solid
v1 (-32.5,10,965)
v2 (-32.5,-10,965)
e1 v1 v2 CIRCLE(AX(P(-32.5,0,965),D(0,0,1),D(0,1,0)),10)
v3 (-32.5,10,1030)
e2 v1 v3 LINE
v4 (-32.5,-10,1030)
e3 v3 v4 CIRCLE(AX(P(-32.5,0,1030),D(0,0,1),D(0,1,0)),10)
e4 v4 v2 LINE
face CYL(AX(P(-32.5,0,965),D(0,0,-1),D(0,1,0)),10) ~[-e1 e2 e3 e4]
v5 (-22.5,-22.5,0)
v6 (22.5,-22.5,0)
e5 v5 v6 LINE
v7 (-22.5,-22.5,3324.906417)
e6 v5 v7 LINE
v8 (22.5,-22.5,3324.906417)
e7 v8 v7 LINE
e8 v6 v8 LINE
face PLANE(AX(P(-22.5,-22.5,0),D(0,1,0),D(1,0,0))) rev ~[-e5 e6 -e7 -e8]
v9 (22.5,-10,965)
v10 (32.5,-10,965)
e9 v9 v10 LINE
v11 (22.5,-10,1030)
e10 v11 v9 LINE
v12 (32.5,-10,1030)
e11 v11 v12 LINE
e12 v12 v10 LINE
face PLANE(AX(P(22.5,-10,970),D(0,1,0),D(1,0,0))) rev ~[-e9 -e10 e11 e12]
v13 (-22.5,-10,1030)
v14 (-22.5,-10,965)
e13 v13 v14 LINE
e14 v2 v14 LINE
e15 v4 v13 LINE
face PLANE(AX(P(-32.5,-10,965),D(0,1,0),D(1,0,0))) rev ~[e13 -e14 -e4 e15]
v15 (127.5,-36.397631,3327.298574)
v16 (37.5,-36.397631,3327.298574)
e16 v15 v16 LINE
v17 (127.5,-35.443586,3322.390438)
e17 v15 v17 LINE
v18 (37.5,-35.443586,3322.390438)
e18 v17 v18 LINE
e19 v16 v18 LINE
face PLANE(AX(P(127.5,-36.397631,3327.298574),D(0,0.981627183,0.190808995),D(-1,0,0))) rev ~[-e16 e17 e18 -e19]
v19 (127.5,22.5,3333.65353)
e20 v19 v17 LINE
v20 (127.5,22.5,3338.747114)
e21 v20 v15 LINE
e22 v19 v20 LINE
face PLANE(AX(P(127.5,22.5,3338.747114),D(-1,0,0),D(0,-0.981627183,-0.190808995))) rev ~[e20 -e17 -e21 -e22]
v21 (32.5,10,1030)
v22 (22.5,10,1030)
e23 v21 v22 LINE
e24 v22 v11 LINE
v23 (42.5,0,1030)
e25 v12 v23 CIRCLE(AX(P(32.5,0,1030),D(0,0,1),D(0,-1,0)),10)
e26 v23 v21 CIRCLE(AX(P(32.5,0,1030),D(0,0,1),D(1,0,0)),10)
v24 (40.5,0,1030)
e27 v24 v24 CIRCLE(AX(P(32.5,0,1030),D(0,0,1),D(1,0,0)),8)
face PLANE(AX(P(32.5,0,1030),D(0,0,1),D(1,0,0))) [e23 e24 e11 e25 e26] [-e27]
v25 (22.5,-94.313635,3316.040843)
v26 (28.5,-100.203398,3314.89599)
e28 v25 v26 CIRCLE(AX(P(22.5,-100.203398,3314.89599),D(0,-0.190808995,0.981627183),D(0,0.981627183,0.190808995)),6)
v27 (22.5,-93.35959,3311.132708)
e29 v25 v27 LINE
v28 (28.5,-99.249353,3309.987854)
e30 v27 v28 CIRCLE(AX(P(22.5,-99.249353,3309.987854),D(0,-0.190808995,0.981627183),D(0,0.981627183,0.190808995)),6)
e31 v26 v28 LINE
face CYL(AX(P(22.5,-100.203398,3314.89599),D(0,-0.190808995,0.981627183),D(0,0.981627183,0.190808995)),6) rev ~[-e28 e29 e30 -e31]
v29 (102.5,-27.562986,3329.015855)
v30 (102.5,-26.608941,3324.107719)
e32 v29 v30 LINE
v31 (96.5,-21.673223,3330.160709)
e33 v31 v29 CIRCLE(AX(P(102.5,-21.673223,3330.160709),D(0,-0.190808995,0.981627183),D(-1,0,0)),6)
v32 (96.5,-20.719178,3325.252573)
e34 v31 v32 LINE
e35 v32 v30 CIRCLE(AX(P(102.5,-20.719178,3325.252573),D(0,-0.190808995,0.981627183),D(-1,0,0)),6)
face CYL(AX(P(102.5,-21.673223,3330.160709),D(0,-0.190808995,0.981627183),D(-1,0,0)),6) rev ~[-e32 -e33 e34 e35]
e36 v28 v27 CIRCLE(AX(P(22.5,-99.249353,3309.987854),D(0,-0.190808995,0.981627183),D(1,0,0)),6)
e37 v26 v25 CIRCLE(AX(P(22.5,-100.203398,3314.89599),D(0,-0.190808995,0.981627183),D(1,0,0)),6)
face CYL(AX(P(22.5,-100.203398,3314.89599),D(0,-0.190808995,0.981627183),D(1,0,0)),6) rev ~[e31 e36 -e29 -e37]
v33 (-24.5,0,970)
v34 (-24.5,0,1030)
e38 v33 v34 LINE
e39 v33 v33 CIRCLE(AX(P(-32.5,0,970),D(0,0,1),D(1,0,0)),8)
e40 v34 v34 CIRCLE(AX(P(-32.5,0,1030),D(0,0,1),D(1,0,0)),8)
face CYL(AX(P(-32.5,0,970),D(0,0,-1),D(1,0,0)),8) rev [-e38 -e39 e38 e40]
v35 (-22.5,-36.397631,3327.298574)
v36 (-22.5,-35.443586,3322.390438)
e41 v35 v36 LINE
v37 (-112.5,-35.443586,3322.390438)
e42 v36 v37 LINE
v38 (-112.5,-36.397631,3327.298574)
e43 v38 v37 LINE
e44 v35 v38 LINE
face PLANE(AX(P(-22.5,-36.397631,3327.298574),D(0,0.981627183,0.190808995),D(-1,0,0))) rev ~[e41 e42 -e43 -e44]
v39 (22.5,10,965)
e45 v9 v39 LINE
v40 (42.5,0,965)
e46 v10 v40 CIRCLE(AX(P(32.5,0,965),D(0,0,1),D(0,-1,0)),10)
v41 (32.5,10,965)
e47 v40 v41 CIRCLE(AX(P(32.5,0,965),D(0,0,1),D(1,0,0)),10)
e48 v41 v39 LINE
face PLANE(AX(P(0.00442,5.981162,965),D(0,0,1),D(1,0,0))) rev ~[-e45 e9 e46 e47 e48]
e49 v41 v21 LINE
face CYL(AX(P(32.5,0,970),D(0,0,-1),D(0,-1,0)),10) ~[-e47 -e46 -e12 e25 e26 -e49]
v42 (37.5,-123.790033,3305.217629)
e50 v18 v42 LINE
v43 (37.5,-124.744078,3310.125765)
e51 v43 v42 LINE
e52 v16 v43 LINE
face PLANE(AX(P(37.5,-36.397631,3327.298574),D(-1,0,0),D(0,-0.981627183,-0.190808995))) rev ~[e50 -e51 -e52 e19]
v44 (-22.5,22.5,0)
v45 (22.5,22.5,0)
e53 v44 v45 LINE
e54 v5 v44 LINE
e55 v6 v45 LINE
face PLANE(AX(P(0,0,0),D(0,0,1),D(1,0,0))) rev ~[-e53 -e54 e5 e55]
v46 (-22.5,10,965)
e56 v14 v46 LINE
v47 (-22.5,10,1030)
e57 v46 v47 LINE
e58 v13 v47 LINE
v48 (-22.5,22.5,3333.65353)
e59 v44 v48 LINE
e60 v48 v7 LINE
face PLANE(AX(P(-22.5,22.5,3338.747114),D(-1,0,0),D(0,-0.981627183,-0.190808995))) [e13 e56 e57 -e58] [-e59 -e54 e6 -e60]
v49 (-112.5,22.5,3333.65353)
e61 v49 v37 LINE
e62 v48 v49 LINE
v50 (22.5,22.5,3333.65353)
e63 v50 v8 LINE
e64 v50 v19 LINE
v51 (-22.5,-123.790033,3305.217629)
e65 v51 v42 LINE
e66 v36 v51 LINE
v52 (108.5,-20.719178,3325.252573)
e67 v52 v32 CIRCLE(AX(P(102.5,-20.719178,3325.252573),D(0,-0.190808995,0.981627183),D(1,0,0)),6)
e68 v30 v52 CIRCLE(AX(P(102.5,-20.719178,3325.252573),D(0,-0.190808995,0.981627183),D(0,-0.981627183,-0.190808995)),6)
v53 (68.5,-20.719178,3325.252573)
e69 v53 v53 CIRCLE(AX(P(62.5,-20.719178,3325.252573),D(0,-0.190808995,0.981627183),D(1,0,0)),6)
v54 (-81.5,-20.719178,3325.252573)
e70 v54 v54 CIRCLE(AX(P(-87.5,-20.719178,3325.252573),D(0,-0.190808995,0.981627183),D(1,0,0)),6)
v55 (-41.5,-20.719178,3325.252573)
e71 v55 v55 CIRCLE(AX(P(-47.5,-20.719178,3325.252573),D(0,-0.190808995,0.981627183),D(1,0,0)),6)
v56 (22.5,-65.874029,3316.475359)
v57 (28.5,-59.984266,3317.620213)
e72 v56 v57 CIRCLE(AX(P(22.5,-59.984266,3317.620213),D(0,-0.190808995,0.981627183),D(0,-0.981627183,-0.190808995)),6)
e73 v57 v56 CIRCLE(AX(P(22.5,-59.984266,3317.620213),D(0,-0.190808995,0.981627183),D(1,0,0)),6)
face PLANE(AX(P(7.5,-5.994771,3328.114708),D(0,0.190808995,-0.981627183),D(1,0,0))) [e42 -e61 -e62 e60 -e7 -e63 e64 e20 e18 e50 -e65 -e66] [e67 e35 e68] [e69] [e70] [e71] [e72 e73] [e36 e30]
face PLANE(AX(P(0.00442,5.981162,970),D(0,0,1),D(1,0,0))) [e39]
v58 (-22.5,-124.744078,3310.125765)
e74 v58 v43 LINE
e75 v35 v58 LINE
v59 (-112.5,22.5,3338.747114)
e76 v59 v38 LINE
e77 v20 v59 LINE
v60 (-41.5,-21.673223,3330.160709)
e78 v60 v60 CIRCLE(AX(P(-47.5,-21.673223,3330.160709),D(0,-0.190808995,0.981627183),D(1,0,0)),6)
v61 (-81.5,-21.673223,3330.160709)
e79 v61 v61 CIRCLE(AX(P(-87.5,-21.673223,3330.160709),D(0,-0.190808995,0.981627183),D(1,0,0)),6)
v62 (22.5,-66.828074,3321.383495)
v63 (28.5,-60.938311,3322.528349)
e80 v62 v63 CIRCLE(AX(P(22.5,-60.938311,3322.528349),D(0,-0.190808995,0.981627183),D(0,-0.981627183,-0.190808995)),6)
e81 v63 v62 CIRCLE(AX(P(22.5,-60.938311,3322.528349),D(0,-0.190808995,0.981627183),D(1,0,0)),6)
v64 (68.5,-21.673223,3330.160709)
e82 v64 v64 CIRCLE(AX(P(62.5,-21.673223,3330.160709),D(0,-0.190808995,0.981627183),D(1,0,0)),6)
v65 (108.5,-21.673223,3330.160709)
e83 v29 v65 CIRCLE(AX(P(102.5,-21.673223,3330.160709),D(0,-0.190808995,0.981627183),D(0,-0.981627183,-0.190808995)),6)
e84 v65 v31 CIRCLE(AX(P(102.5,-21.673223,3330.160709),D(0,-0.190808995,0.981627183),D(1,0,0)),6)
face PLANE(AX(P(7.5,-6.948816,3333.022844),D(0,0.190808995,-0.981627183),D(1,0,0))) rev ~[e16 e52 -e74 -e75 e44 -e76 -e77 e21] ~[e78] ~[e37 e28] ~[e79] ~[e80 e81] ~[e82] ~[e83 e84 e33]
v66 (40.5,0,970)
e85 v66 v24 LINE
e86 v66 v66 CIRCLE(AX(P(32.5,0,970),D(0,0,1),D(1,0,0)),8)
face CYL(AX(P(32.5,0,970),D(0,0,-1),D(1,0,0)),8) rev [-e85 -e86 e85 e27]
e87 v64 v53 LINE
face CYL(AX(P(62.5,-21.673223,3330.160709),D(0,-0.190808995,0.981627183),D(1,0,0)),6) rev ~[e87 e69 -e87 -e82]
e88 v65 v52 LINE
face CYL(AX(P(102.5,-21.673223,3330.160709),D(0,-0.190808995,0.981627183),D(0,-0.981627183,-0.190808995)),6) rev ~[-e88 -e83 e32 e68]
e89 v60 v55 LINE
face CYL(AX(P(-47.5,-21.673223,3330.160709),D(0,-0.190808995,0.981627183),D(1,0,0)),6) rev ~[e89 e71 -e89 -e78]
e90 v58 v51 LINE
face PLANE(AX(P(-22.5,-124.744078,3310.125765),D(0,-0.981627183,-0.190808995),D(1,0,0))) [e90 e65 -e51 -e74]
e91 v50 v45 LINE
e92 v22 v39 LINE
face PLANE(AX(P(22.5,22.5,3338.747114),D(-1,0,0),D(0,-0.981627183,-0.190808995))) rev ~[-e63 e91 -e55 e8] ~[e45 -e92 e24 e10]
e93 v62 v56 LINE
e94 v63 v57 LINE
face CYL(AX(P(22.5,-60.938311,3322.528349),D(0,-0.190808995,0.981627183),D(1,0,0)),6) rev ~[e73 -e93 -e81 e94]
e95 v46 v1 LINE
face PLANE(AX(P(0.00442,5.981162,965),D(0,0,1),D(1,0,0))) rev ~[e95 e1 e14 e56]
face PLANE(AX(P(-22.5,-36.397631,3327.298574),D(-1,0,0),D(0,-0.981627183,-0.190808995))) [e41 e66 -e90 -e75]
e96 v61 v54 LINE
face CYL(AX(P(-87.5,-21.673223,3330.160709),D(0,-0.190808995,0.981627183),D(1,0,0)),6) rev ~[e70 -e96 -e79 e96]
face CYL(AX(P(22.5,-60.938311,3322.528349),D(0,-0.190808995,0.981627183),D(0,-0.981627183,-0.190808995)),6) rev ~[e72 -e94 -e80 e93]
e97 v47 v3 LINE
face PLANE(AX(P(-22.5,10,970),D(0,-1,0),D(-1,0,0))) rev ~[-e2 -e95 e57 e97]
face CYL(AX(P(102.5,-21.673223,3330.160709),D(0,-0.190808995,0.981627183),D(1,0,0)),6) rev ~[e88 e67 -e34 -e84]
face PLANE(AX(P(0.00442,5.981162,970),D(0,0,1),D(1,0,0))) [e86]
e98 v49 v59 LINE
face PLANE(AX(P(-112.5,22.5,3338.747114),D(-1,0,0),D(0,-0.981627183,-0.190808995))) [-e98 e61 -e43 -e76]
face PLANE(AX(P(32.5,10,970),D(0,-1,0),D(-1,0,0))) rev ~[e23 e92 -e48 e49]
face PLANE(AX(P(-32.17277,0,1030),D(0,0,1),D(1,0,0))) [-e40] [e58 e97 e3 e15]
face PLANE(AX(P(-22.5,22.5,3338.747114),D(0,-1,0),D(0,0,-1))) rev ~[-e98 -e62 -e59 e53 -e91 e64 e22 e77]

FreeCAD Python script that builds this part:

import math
import FreeCAD as App
import Part
import Sketcher
Q = App.Units.Quantity


def add_polygon(sketch, points):
    """Adds a closed chain of lines whose ends are joined by coincident constraints."""
    first, n = sketch.GeometryCount, len(points)
    for a, b in zip(points, points[1:] + points[:1]):
        sketch.addGeometry(Part.LineSegment(App.Vector(*a, 0), App.Vector(*b, 0)), False)
    for i in range(n):
        sketch.addConstraint(Sketcher.Constraint("Coincident", first + i, 2, first + (i + 1) % n, 1))

doc = App.newDocument("Part")
body = doc.addObject("PartDesign::Body", "Body")

# Sketch on XY plane
sketch1 = doc.addObject("Sketcher::SketchObject", "Sketch")
body.addObject(sketch1)
sketch1.AttachmentSupport = (doc.XY_Plane, [""])
sketch1.MapMode = "FlatFace"
add_polygon(sketch1, [(-22.5, 22.5), (-22.5, -22.5), (22.5, -22.5), (22.5, 22.5)])  # lines 0-3
sketch1.addConstraint([
    Sketcher.Constraint("Vertical", 0),
    Sketcher.Constraint("Horizontal", 1),
    Sketcher.Constraint("Vertical", 2),
    Sketcher.Constraint("Horizontal", 3),
    Sketcher.Constraint("Symmetric", 0, 2, 2, 2, -1, 1),
    Sketcher.Constraint("Equal", 3, 0),
    Sketcher.Constraint("DistanceX", 1, 1, 1, 2, 45.0),
])
pad1 = doc.addObject("PartDesign::Pad", "Pad")
body.addObject(pad1)
pad1.Profile = sketch1
pad1.Length = 3330

# Sketch on XY plane
sketch2 = doc.addObject("Sketcher::SketchObject", "Sketch001")
body.addObject(sketch2)
sketch2.AttachmentSupport = (doc.XY_Plane, [""])
sketch2.MapMode = "FlatFace"
sketch2.AttachmentOffset = App.Placement(App.Vector(0, 0, 965), App.Rotation())
sketch2.addGeometry([
    Part.ArcOfCircle(Part.Circle(App.Vector(32.5, 0, 0), App.Vector(0, 0, 1), 10), math.radians(0), math.radians(90)),  # 0
    Part.LineSegment(App.Vector(32.5, 10, 0), App.Vector(-32.5, 10, 0)),  # 1
    Part.ArcOfCircle(Part.Circle(App.Vector(-32.5, 0, 0), App.Vector(0, 0, 1), 10), math.radians(90), math.radians(270)),  # 2
    Part.LineSegment(App.Vector(-32.5, -10, 0), App.Vector(32.5, -10, 0)),  # 3
    Part.ArcOfCircle(Part.Circle(App.Vector(32.5, 0, 0), App.Vector(0, 0, 1), 10), math.radians(-90), math.radians(0)),  # 4
], False)
sketch2.addConstraint([
    Sketcher.Constraint("Tangent", 0, 2, 1, 1),
    Sketcher.Constraint("Tangent", 1, 2, 2, 1),
    Sketcher.Constraint("Tangent", 2, 2, 3, 1),
    Sketcher.Constraint("Tangent", 3, 2, 4, 1),
    Sketcher.Constraint("Tangent", 4, 2, 0, 1),
    Sketcher.Constraint("Horizontal", 1),
    Sketcher.Constraint("Horizontal", 3),
    Sketcher.Constraint("Equal", 0, 2),
    Sketcher.Constraint("Symmetric", 0, 3, 2, 3, -1, 1),
    Sketcher.Constraint("PointOnObject", 4, 2, -1),
    Sketcher.Constraint("Radius", 0, 10.0),
    Sketcher.Constraint("DistanceX", 1, 2, 1, 1, 65.0),
])
pad2 = doc.addObject("PartDesign::Pad", "Pad001")
body.addObject(pad2)
pad2.Profile = sketch2
pad2.Length = 5

# Sketch on XY plane
sketch3 = doc.addObject("Sketcher::SketchObject", "Sketch002")
body.addObject(sketch3)
sketch3.AttachmentSupport = (doc.XY_Plane, [""])
sketch3.MapMode = "FlatFace"
sketch3.AttachmentOffset = App.Placement(App.Vector(0, 0, 970), App.Rotation())
sketch3.addGeometry([
    Part.ArcOfCircle(Part.Circle(App.Vector(32.5, 0, 0), App.Vector(0, 0, 1), 10), math.radians(-90), math.radians(0)),  # 0
    Part.ArcOfCircle(Part.Circle(App.Vector(32.5, 0, 0), App.Vector(0, 0, 1), 10), math.radians(0), math.radians(90)),  # 1
    Part.LineSegment(App.Vector(32.5, 10, 0), App.Vector(22.5, 10, 0)),  # 2
    Part.LineSegment(App.Vector(22.5, 10, 0), App.Vector(22.5, -10, 0)),  # 3
    Part.LineSegment(App.Vector(22.5, -10, 0), App.Vector(32.5, -10, 0)),  # 4
    Part.Circle(App.Vector(32.5, 0, 0), App.Vector(0, 0, 1), 8),  # 5
    Part.LineSegment(App.Vector(-22.5, 10, 0), App.Vector(-32.5, 10, 0)),  # 6
    Part.ArcOfCircle(Part.Circle(App.Vector(-32.5, 0, 0), App.Vector(0, 0, 1), 10), math.radians(90), math.radians(270)),  # 7
    Part.LineSegment(App.Vector(-32.5, -10, 0), App.Vector(-22.5, -10, 0)),  # 8
    Part.LineSegment(App.Vector(-22.5, -10, 0), App.Vector(-22.5, 10, 0)),  # 9
    Part.Circle(App.Vector(-32.5, 0, 0), App.Vector(0, 0, 1), 8),  # 10
], False)
sketch3.addConstraint([
    Sketcher.Constraint("Tangent", 0, 2, 1, 1),
    Sketcher.Constraint("Tangent", 1, 2, 2, 1),
    Sketcher.Constraint("Coincident", 2, 2, 3, 1),
    Sketcher.Constraint("Coincident", 3, 2, 4, 1),
    Sketcher.Constraint("Tangent", 4, 2, 0, 1),
    Sketcher.Constraint("Tangent", 6, 2, 7, 1),
    Sketcher.Constraint("Tangent", 7, 2, 8, 1),
    Sketcher.Constraint("Coincident", 8, 2, 9, 1),
    Sketcher.Constraint("Coincident", 9, 2, 6, 1),
    Sketcher.Constraint("Horizontal", 2),
    Sketcher.Constraint("Vertical", 3),
    Sketcher.Constraint("Horizontal", 4),
    Sketcher.Constraint("Horizontal", 6),
    Sketcher.Constraint("Horizontal", 8),
    Sketcher.Constraint("Vertical", 9),
    Sketcher.Constraint("Coincident", 5, 3, 0, 3),
    Sketcher.Constraint("Coincident", 10, 3, 7, 3),
    Sketcher.Constraint("Equal", 0, 1),
    Sketcher.Constraint("Equal", 1, 7),
    Sketcher.Constraint("Equal", 5, 10),
    Sketcher.Constraint("Symmetric", 0, 3, 7, 3, -1, 1),
    Sketcher.Constraint("Symmetric", 3, 2, 8, 2, -2),
    Sketcher.Constraint("PointOnObject", 0, 2, -1),
    Sketcher.Constraint("Diameter", 5, 16.0),
    Sketcher.Constraint("Radius", 0, 10.0),
    Sketcher.Constraint("DistanceX", 2, 2, 2, 1, 10.0),
    Sketcher.Constraint("DistanceX", 7, 3, 0, 3, 65.0),
])
pad3 = doc.addObject("PartDesign::Pad", "Pad002")
body.addObject(pad3)
pad3.Profile = sketch3
pad3.Length = 60

# Sketch on an angled plane
sketch4 = doc.addObject("Sketcher::SketchObject", "Sketch003")
body.addObject(sketch4)
sketch4.Placement = App.Placement(App.Vector(0, -624.53916, 3212.975442), App.Rotation(App.Vector(1, 0, 0), App.Vector(0, -0.981627183, -0.190808995), App.Vector(0, 0.190808995, -0.981627183), "ZXY"))
add_polygon(sketch4, [(-22.5, -613.307342), (-22.5, -659.149594), (22.5, -659.149594), (22.5, -613.307342)])  # lines 0-3
sketch4.addConstraint([
    Sketcher.Constraint("Vertical", 0),
    Sketcher.Constraint("Horizontal", 1),
    Sketcher.Constraint("Vertical", 2),
    Sketcher.Constraint("Horizontal", 3),
    Sketcher.Constraint("DistanceX", 1, 1, 1, 2, 45.0),
    Sketcher.Constraint("DistanceX", 0, 2, -1, 1, 22.5),
    Sketcher.Constraint("DistanceY", 0, 2, 0, 1, 45.842251),
    Sketcher.Constraint("DistanceY", 0, 2, -1, 1, 659.149594),
])
pad4 = doc.addObject("PartDesign::Pad", "Pad003")
body.addObject(pad4)
pad4.Profile = sketch4
pad4.Length = 25

# Sketch on an angled plane
sketch5 = doc.addObject("Sketcher::SketchObject", "Sketch004")
body.addObject(sketch5)
sketch5.Placement = App.Placement(App.Vector(0, -624.53916, 3212.975442), App.Rotation(App.Vector(1, 0, 0), App.Vector(0, -0.981627183, -0.190808995), App.Vector(0, 0.190808995, -0.981627183), "ZXY"))
add_polygon(sketch5, [(-112.5, -599.149594), (-112.5, -659.149594), (127.5, -659.149594), (127.5, -599.149594), (37.5, -599.149594), (37.5, -509.149594), (-22.5, -509.149594), (-22.5, -599.149594)])  # lines 0-7
sketch5.addConstraint([
    Sketcher.Constraint("Vertical", 0),
    Sketcher.Constraint("Horizontal", 1),
    Sketcher.Constraint("Vertical", 2),
    Sketcher.Constraint("Horizontal", 3),
    Sketcher.Constraint("Vertical", 4),
    Sketcher.Constraint("Horizontal", 5),
    Sketcher.Constraint("Vertical", 6),
    Sketcher.Constraint("Horizontal", 7),
    Sketcher.Constraint("Horizontal", 3, 2, 6, 2),
    Sketcher.Constraint("Equal", 3, 7),
    Sketcher.Constraint("Equal", 5, 0),
    Sketcher.Constraint("Equal", 7, 4),
    Sketcher.Constraint("DistanceX", 1, 1, 1, 2, 240.0),
    Sketcher.Constraint("DistanceX", 3, 2, 3, 1, 90.0),
    Sketcher.Constraint("DistanceX", 0, 2, -1, 1, 112.5),
    Sketcher.Constraint("DistanceY", 0, 2, -1, 1, 659.149594),
])
pad5 = doc.addObject("PartDesign::Pad", "Pad004")
body.addObject(pad5)
pad5.Profile = sketch5
pad5.Length = 5

# Sketch on an angled plane
sketch6 = doc.addObject("Sketcher::SketchObject", "Sketch005")
body.addObject(sketch6)
sketch6.Placement = App.Placement(App.Vector(0, -624.53916, 3212.975442), App.Rotation(App.Vector(1, 0, 0), App.Vector(0, 0.981627183, 0.190808995), App.Vector(0, -0.190808995, 0.981627183), "ZXY"))
sketch6.addGeometry([
    Part.ArcOfCircle(Part.Circle(App.Vector(22.5, 534.149594, 0), App.Vector(0, 0, 1), 6), math.radians(90), math.radians(360)),  # 0
    Part.ArcOfCircle(Part.Circle(App.Vector(22.5, 534.149594, 0), App.Vector(0, 0, 1), 6), math.radians(0), math.radians(90)),  # 1
    Part.ArcOfCircle(Part.Circle(App.Vector(22.5, 574.149594, 0), App.Vector(0, 0, 1), 6), math.radians(0), math.radians(270)),  # 2
    Part.ArcOfCircle(Part.Circle(App.Vector(22.5, 574.149594, 0), App.Vector(0, 0, 1), 6), math.radians(-90), math.radians(0)),  # 3
    Part.ArcOfCircle(Part.Circle(App.Vector(102.5, 614.149594, 0), App.Vector(0, 0, 1), 6), math.radians(180), math.radians(270)),  # 4
    Part.ArcOfCircle(Part.Circle(App.Vector(102.5, 614.149594, 0), App.Vector(0, 0, 1), 6), math.radians(-90), math.radians(0)),  # 5
    Part.ArcOfCircle(Part.Circle(App.Vector(102.5, 614.149594, 0), App.Vector(0, 0, 1), 6), math.radians(0), math.radians(180)),  # 6
    Part.Circle(App.Vector(62.5, 614.149594, 0), App.Vector(0, 0, 1), 6),  # 7
    Part.Circle(App.Vector(-47.5, 614.149594, 0), App.Vector(0, 0, 1), 6),  # 8
    Part.Circle(App.Vector(-87.5, 614.149594, 0), App.Vector(0, 0, 1), 6),  # 9
], False)
sketch6.addConstraint([
    Sketcher.Constraint("Tangent", 0, 1, 1, 2),
    Sketcher.Constraint("Coincident", 1, 1, 0, 2),
    Sketcher.Constraint("Tangent", 2, 1, 3, 2),
    Sketcher.Constraint("Coincident", 3, 1, 2, 2),
    Sketcher.Constraint("Tangent", 4, 2, 5, 1),
    Sketcher.Constraint("Tangent", 5, 2, 6, 1),
    Sketcher.Constraint("Tangent", 6, 2, 4, 1),
    Sketcher.Constraint("Equal", 1, 2),
    Sketcher.Constraint("Equal", 3, 4),
    Sketcher.Constraint("Equal", 6, 7),
    Sketcher.Constraint("Equal", 7, 8),
    Sketcher.Constraint("Equal", 8, 9),
    Sketcher.Constraint("Horizontal", 6, 3, 7, 3),
    Sketcher.Constraint("Horizontal", 7, 3, 8, 3),
    Sketcher.Constraint("Horizontal", 8, 3, 9, 3),
    Sketcher.Constraint("Horizontal", 0, 3, 1, 1),
    Sketcher.Constraint("Horizontal", 3, 3, 2, 1),
    Sketcher.Constraint("Horizontal", 9, 3, 5, 2),
    Sketcher.Constraint("Horizontal", 5, 2, 6, 2),
    Sketcher.Constraint("Vertical", 1, 3, 2, 3),
    Sketcher.Constraint("Vertical", 3, 3, 0, 1),
    Sketcher.Constraint("Vertical", 0, 1, 3, 1),
    Sketcher.Constraint("Vertical", 6, 3, 4, 2),
    Sketcher.Constraint("Diameter", 7, 12.0),
    Sketcher.Constraint("DistanceY", 0, 3, 2, 3, 40.0),
    Sketcher.Constraint("DistanceX", 2, 3, 4, 3, 80.0),
    Sketcher.Constraint("DistanceY", 2, 3, 4, 3, 40.0),
    Sketcher.Constraint("DistanceX", 7, 3, 4, 3, 40.0),
    Sketcher.Constraint("DistanceX", 8, 3, 2, 3, 70.0),
    Sketcher.Constraint("DistanceX", 9, 3, 8, 3, 40.0),
    Sketcher.Constraint("DistanceX", -1, 1, 0, 3, 22.5),
    Sketcher.Constraint("DistanceY", -1, 1, 0, 3, 534.149594),
])
pocket1 = doc.addObject("PartDesign::Pocket", "Pocket")
body.addObject(pocket1)
pocket1.Profile = sketch6
pocket1.Length = 25

# Sketch on XY plane
sketch7 = doc.addObject("Sketcher::SketchObject", "Sketch006")
body.addObject(sketch7)
sketch7.AttachmentSupport = (doc.XY_Plane, [""])
sketch7.MapMode = "FlatFace"
add_polygon(sketch7, [(-22.5, 27.270225), (-22.5, 22.5), (127.5, 22.5), (127.5, 27.270225)])  # lines 0-3
sketch7.addConstraint([
    Sketcher.Constraint("Vertical", 0),
    Sketcher.Constraint("Horizontal", 1),
    Sketcher.Constraint("Vertical", 2),
    Sketcher.Constraint("Horizontal", 3),
    Sketcher.Constraint("DistanceX", 1, 1, 1, 2, 150.0),
    Sketcher.Constraint("DistanceX", 0, 2, -1, 1, 22.5),
    Sketcher.Constraint("DistanceY", -1, 1, 0, 2, 22.5),
    Sketcher.Constraint("DistanceY", 0, 2, 0, 1, 4.770225),
])
pocket2 = doc.addObject("PartDesign::Pocket", "Pocket001")
body.addObject(pocket2)
pocket2.Profile = sketch7
pocket2.Length = 3358.687162
pocket2.Reversed = True

# Sketch on YZ plane
sketch8 = doc.addObject("Sketcher::SketchObject", "Sketch007")
body.addObject(sketch8)
sketch8.AttachmentSupport = (doc.YZ_Plane, [""])
sketch8.MapMode = "FlatFace"
sketch8.AttachmentOffset = App.Placement(App.Vector(0, 0, -22.5), App.Rotation())
add_polygon(sketch8, [(22.5, 3333.65353), (23.454045, 3333.838978), (22.5, 3338.747114)])  # lines 0-2
sketch8.addConstraint([
    Sketcher.Constraint("Vertical", 2),
    Sketcher.Constraint("Perpendicular", 0, 1),
    Sketcher.Constraint("Angle", 0, Q("11 deg")),
    Sketcher.Constraint("Distance", 1, 5.0),
    Sketcher.Constraint("DistanceX", -1, 1, 1, 2, 22.5),
    Sketcher.Constraint("DistanceY", -1, 1, 2, 2, 3333.65353),
])
pocket3 = doc.addObject("PartDesign::Pocket", "Pocket002")
body.addObject(pocket3)
pocket3.Profile = sketch8
pocket3.Length = 111

doc.recompute()
